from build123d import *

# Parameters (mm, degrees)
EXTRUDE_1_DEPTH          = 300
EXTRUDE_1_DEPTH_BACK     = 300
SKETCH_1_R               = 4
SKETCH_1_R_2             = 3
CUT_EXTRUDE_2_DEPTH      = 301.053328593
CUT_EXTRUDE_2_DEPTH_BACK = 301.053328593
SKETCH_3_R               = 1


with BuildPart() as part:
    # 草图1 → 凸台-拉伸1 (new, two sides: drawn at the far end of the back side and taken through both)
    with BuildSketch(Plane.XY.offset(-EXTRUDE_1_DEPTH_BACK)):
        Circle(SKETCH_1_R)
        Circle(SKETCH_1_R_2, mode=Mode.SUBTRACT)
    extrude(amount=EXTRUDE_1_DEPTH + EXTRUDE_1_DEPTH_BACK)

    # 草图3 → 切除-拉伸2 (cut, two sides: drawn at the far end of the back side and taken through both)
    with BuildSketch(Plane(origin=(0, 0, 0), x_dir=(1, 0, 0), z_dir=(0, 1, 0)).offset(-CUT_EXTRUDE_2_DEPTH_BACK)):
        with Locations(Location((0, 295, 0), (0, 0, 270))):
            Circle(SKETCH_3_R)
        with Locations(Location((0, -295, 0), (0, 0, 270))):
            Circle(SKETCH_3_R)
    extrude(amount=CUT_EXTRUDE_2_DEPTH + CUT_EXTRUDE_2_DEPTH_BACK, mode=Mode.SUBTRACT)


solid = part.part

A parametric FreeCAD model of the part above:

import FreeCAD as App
import Part
import Sketcher

doc = App.newDocument("Part")
body = doc.addObject("PartDesign::Body", "Body")

# Sketch on XY plane
sketch1 = body.newObject("Sketcher::SketchObject", "Sketch")
sketch1.AttachmentSupport = (doc.getObject("XY_Plane"), [""])
sketch1.MapMode = "FlatFace"
sketch1.addGeometry(Part.Circle(App.Vector(0, 0, 0), App.Vector(0, 0, 1), 4), False)
sketch1.addGeometry(Part.Circle(App.Vector(0, 0, 0), App.Vector(0, 0, 1), 3), False)
sketch1.addConstraint(Sketcher.Constraint("Coincident", 0, 3, -1, 1))
sketch1.addConstraint(Sketcher.Constraint("Coincident", 1, 3, -1, 1))
sketch1.addConstraint(Sketcher.Constraint("Diameter", 0, 8.0))
sketch1.addConstraint(Sketcher.Constraint("Diameter", 1, 6.0))
pad1 = body.newObject("PartDesign::Pad", "Pad")
pad1.Profile = sketch1
pad1.Type = "TwoLengths"
pad1.Length = 300
pad1.Length2 = 300

# Sketch on XZ plane
sketch2 = body.newObject("Sketcher::SketchObject", "Sketch001")
sketch2.AttachmentSupport = (doc.getObject("XZ_Plane"), [""])
sketch2.MapMode = "FlatFace"
sketch2.addGeometry(Part.Circle(App.Vector(0, -295, 0), App.Vector(0, 0, 1), 1), False)
sketch2.addGeometry(Part.Circle(App.Vector(0, 295, 0), App.Vector(0, 0, 1), 1), False)
sketch2.addConstraint(Sketcher.Constraint("Equal", 0, 1))
sketch2.addConstraint(Sketcher.Constraint("Symmetric", 0, 3, 1, 3, -1, 1))
sketch2.addConstraint(Sketcher.Constraint("PointOnObject", 0, 3, -2))
sketch2.addConstraint(Sketcher.Constraint("Diameter", 0, 2.0))
sketch2.addConstraint(Sketcher.Constraint("DistanceY", 0, 3, -1, 1, 295.0))
pocket1 = body.newObject("PartDesign::Pocket", "Pocket")
pocket1.Profile = sketch2
pocket1.Type = "ThroughAll"
pocket1.Midplane = True

doc.recompute()
